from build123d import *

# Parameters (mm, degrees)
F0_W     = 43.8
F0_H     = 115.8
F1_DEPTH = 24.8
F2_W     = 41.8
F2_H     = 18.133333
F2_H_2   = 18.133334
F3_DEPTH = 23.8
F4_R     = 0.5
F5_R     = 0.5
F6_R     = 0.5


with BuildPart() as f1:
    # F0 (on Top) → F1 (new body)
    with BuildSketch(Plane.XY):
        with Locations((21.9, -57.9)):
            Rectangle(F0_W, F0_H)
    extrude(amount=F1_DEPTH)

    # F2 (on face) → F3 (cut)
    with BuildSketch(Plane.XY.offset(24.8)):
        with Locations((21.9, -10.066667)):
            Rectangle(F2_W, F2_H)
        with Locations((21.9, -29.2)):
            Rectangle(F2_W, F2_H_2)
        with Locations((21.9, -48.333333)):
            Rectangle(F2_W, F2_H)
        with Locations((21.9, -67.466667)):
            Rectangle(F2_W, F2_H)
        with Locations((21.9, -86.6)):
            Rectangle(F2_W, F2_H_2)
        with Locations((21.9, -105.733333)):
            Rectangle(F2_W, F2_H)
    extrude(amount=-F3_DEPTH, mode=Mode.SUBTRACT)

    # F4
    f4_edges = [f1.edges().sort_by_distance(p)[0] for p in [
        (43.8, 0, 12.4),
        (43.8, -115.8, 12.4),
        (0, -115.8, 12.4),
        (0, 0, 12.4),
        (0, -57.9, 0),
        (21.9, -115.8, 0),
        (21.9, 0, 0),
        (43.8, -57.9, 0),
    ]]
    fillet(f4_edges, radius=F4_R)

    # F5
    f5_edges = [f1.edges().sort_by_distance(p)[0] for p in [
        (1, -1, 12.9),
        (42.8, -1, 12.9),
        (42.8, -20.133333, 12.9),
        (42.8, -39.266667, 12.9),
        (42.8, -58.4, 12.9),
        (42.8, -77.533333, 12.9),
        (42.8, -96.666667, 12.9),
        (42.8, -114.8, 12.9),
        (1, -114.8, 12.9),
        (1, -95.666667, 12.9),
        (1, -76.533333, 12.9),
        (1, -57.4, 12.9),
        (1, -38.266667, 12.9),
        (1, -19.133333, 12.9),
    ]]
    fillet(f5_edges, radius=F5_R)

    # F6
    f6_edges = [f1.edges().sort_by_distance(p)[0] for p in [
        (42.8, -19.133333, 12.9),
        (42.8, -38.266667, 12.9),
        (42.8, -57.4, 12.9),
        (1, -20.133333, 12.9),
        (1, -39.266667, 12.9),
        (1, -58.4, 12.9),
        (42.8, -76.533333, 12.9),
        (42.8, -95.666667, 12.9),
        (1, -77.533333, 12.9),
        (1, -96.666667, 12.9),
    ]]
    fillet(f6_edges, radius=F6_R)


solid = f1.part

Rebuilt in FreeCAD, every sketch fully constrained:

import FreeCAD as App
import Part
import Sketcher
Q = App.Units.Quantity


def edges_at(feature, points):
    """Names of the edges that pass closest to the given points."""
    edges = feature.Shape.Edges
    near = lambda p: min(range(len(edges)), key=lambda i: edges[i].distToShape(Part.Vertex(*p))[0])
    return sorted({f"Edge{near(p) + 1}" for p in points})

doc = App.newDocument("Part")
body = doc.addObject("PartDesign::Body", "Body")

# Sketch on XY plane
sketch1 = doc.addObject("Sketcher::SketchObject", "Sketch")
body.addObject(sketch1)
sketch1.AttachmentSupport = (doc.XY_Plane, [""])
sketch1.MapMode = "FlatFace"
sketch1.addGeometry([
    Part.LineSegment(App.Vector(0, 0, 0), App.Vector(0, -115.8, 0)),
    Part.LineSegment(App.Vector(0, -115.8, 0), App.Vector(43.8, -115.8, 0)),
    Part.LineSegment(App.Vector(43.8, -115.8, 0), App.Vector(43.8, 0, 0)),
    Part.LineSegment(App.Vector(43.8, 0, 0), App.Vector(0, 0, 0)),
], False)
sketch1.addConstraint([
    Sketcher.Constraint("Coincident", 0, 2, 1, 1),
    Sketcher.Constraint("Coincident", 1, 2, 2, 1),
    Sketcher.Constraint("Coincident", 2, 2, 3, 1),
    Sketcher.Constraint("Coincident", 3, 2, 0, 1),
    Sketcher.Constraint("Vertical", 0),
    Sketcher.Constraint("Horizontal", 1),
    Sketcher.Constraint("Vertical", 2),
    Sketcher.Constraint("Horizontal", 3),
    Sketcher.Constraint("Coincident", 3, 2, -1, 1),
    Sketcher.Constraint("DistanceX", 1, 1, 1, 2, Q("43.8 mm")),
    Sketcher.Constraint("DistanceY", 0, 2, 0, 1, Q("115.8 mm")),
])
pad1 = doc.addObject("PartDesign::Pad", "Pad")
body.addObject(pad1)
pad1.Profile = sketch1
pad1.Length = 24.8

# Sketch on XY plane
sketch2 = doc.addObject("Sketcher::SketchObject", "Sketch001")
body.addObject(sketch2)
sketch2.AttachmentSupport = (doc.XY_Plane, [""])
sketch2.MapMode = "FlatFace"
sketch2.AttachmentOffset = App.Placement(App.Vector(0, 0, 24.8), App.Rotation())
sketch2.addGeometry([
    Part.LineSegment(App.Vector(1, -1.000001, 0), App.Vector(1, -19.133333, 0)),  # 0
    Part.LineSegment(App.Vector(1, -19.133333, 0), App.Vector(42.8, -19.133333, 0)),  # 1
    Part.LineSegment(App.Vector(42.8, -19.133333, 0), App.Vector(42.8, -1.000001, 0)),  # 2
    Part.LineSegment(App.Vector(42.8, -1.000001, 0), App.Vector(1, -1.000001, 0)),  # 3
    Part.LineSegment(App.Vector(1, -20.133333, 0), App.Vector(1, -38.266667, 0)),  # 4
    Part.LineSegment(App.Vector(1, -38.266667, 0), App.Vector(42.8, -38.266667, 0)),  # 5
    Part.LineSegment(App.Vector(42.8, -38.266667, 0), App.Vector(42.8, -20.133333, 0)),  # 6
    Part.LineSegment(App.Vector(42.8, -20.133333, 0), App.Vector(1, -20.133333, 0)),  # 7
    Part.LineSegment(App.Vector(1, -39.266666, 0), App.Vector(1, -57.399999, 0)),  # 8
    Part.LineSegment(App.Vector(1, -57.399999, 0), App.Vector(42.8, -57.399999, 0)),  # 9
    Part.LineSegment(App.Vector(42.8, -57.399999, 0), App.Vector(42.8, -39.266666, 0)),  # 10
    Part.LineSegment(App.Vector(42.8, -39.266666, 0), App.Vector(1, -39.266666, 0)),  # 11
    Part.LineSegment(App.Vector(1, -58.4, 0), App.Vector(1, -76.533333, 0)),  # 12
    Part.LineSegment(App.Vector(1, -76.533333, 0), App.Vector(42.8, -76.533333, 0)),  # 13
    Part.LineSegment(App.Vector(42.8, -76.533333, 0), App.Vector(42.8, -58.4, 0)),  # 14
    Part.LineSegment(App.Vector(42.8, -58.4, 0), App.Vector(1, -58.4, 0)),  # 15
    Part.LineSegment(App.Vector(1, -77.533333, 0), App.Vector(1, -95.666667, 0)),  # 16
    Part.LineSegment(App.Vector(1, -95.666667, 0), App.Vector(42.8, -95.666667, 0)),  # 17
    Part.LineSegment(App.Vector(42.8, -95.666667, 0), App.Vector(42.8, -77.533333, 0)),  # 18
    Part.LineSegment(App.Vector(42.8, -77.533333, 0), App.Vector(1, -77.533333, 0)),  # 19
    Part.LineSegment(App.Vector(1, -96.666667, 0), App.Vector(1, -114.799999, 0)),  # 20
    Part.LineSegment(App.Vector(1, -114.799999, 0), App.Vector(42.8, -114.799999, 0)),  # 21
    Part.LineSegment(App.Vector(42.8, -114.799999, 0), App.Vector(42.8, -96.666667, 0)),  # 22
    Part.LineSegment(App.Vector(42.8, -96.666667, 0), App.Vector(1, -96.666667, 0)),  # 23
], False)
sketch2.addConstraint([
    Sketcher.Constraint("Coincident", 0, 2, 1, 1),
    Sketcher.Constraint("Coincident", 1, 2, 2, 1),
    Sketcher.Constraint("Coincident", 2, 2, 3, 1),
    Sketcher.Constraint("Coincident", 3, 2, 0, 1),
    Sketcher.Constraint("Coincident", 4, 2, 5, 1),
    Sketcher.Constraint("Coincident", 5, 2, 6, 1),
    Sketcher.Constraint("Coincident", 6, 2, 7, 1),
    Sketcher.Constraint("Coincident", 7, 2, 4, 1),
    Sketcher.Constraint("Coincident", 8, 2, 9, 1),
    Sketcher.Constraint("Coincident", 9, 2, 10, 1),
    Sketcher.Constraint("Coincident", 10, 2, 11, 1),
    Sketcher.Constraint("Coincident", 11, 2, 8, 1),
    Sketcher.Constraint("Coincident", 12, 2, 13, 1),
    Sketcher.Constraint("Coincident", 13, 2, 14, 1),
    Sketcher.Constraint("Coincident", 14, 2, 15, 1),
    Sketcher.Constraint("Coincident", 15, 2, 12, 1),
    Sketcher.Constraint("Coincident", 16, 2, 17, 1),
    Sketcher.Constraint("Coincident", 17, 2, 18, 1),
    Sketcher.Constraint("Coincident", 18, 2, 19, 1),
    Sketcher.Constraint("Coincident", 19, 2, 16, 1),
    Sketcher.Constraint("Coincident", 20, 2, 21, 1),
    Sketcher.Constraint("Coincident", 21, 2, 22, 1),
    Sketcher.Constraint("Coincident", 22, 2, 23, 1),
    Sketcher.Constraint("Coincident", 23, 2, 20, 1),
    Sketcher.Constraint("Vertical", 0),
    Sketcher.Constraint("Horizontal", 1),
    Sketcher.Constraint("Vertical", 2),
    Sketcher.Constraint("Horizontal", 3),
    Sketcher.Constraint("Vertical", 4),
    Sketcher.Constraint("Horizontal", 5),
    Sketcher.Constraint("Vertical", 6),
    Sketcher.Constraint("Horizontal", 7),
    Sketcher.Constraint("Vertical", 8),
    Sketcher.Constraint("Horizontal", 9),
    Sketcher.Constraint("Vertical", 10),
    Sketcher.Constraint("Horizontal", 11),
    Sketcher.Constraint("Vertical", 12),
    Sketcher.Constraint("Horizontal", 13),
    Sketcher.Constraint("Vertical", 14),
    Sketcher.Constraint("Horizontal", 15),
    Sketcher.Constraint("Vertical", 16),
    Sketcher.Constraint("Horizontal", 17),
    Sketcher.Constraint("Vertical", 18),
    Sketcher.Constraint("Horizontal", 19),
    Sketcher.Constraint("Vertical", 20),
    Sketcher.Constraint("Horizontal", 21),
    Sketcher.Constraint("Vertical", 22),
    Sketcher.Constraint("Horizontal", 23),
    Sketcher.Constraint("Vertical", 3, 2, 4, 2),
    Sketcher.Constraint("Vertical", 2, 2, 5, 2),
    Sketcher.Constraint("Vertical", 7, 2, 8, 2),
    Sketcher.Constraint("Vertical", 6, 2, 9, 2),
    Sketcher.Constraint("Vertical", 11, 2, 12, 2),
    Sketcher.Constraint("Vertical", 10, 2, 13, 2),
    Sketcher.Constraint("Vertical", 15, 2, 16, 2),
    Sketcher.Constraint("Vertical", 14, 2, 17, 2),
    Sketcher.Constraint("Vertical", 19, 2, 20, 2),
    Sketcher.Constraint("Vertical", 18, 2, 21, 2),
    Sketcher.Constraint("Equal", 2, 4),
    Sketcher.Constraint("Equal", 6, 8),
    Sketcher.Constraint("Equal", 10, 12),
    Sketcher.Constraint("Equal", 14, 16),
    Sketcher.Constraint("Equal", 18, 20),
    Sketcher.Constraint("DistanceX", 1, 1, 1, 2, Q("41.8 mm")),
    Sketcher.Constraint("DistanceX", -1, 1, 0, 2, Q("1 mm")),
    Sketcher.Constraint("DistanceY", 2, 2, -1, 1, Q("1.000001 mm")),
    Sketcher.Constraint("DistanceY", 6, 2, 1, 2, Q("1 mm")),
    Sketcher.Constraint("DistanceY", 10, 2, 5, 2, Q("1 mm")),
    Sketcher.Constraint("DistanceY", 14, 2, 9, 2, Q("1.000001 mm")),
    Sketcher.Constraint("DistanceY", 18, 2, 13, 2, Q("1 mm")),
    Sketcher.Constraint("DistanceY", 22, 2, 17, 2, Q("1 mm")),
    Sketcher.Constraint("DistanceY", 8, 2, -1, 1, Q("57.399999 mm")),
])
pocket1 = doc.addObject("PartDesign::Pocket", "Pocket")
body.addObject(pocket1)
pocket1.Profile = sketch2
pocket1.Length = 23.8
doc.recompute()

fillet = doc.addObject("PartDesign::Fillet", "Fillet")
body.addObject(fillet)
fillet.Base = (pocket1, edges_at(pocket1, [
    (43.8, 0, 12.4),
    (43.8, -115.8, 12.4),
    (0, -115.8, 12.4),
    (0, 0, 12.4),
    (0, -57.9, 0),
    (21.9, -115.8, 0),
    (21.9, 0, 0),
    (43.8, -57.9, 0),
]))
fillet.Radius = 0.5
doc.recompute()

fillet2 = doc.addObject("PartDesign::Fillet", "Fillet001")
body.addObject(fillet2)
fillet2.Base = (fillet, edges_at(fillet, [
    (1, -1, 12.9),
    (42.8, -1, 12.9),
    (42.8, -20.133, 12.9),
    (42.8, -39.267, 12.9),
    (42.8, -58.4, 12.9),
    (42.8, -77.533, 12.9),
    (42.8, -96.667, 12.9),
    (42.8, -114.8, 12.9),
    (1, -114.8, 12.9),
    (1, -95.667, 12.9),
    (1, -76.533, 12.9),
    (1, -57.4, 12.9),
    (1, -38.267, 12.9),
    (1, -19.133, 12.9),
]))
fillet2.Radius = 0.5
doc.recompute()

fillet3 = doc.addObject("PartDesign::Fillet", "Fillet002")
body.addObject(fillet3)
fillet3.Base = (fillet2, edges_at(fillet2, [
    (42.8, -19.133, 12.9),
    (42.8, -38.267, 12.9),
    (42.8, -57.4, 12.9),
    (1, -20.133, 12.9),
    (1, -39.267, 12.9),
    (1, -58.4, 12.9),
    (42.8, -76.533, 12.9),
    (42.8, -95.667, 12.9),
    (1, -77.533, 12.9),
    (1, -96.667, 12.9),
]))
fillet3.Radius = 0.5

doc.recompute()
